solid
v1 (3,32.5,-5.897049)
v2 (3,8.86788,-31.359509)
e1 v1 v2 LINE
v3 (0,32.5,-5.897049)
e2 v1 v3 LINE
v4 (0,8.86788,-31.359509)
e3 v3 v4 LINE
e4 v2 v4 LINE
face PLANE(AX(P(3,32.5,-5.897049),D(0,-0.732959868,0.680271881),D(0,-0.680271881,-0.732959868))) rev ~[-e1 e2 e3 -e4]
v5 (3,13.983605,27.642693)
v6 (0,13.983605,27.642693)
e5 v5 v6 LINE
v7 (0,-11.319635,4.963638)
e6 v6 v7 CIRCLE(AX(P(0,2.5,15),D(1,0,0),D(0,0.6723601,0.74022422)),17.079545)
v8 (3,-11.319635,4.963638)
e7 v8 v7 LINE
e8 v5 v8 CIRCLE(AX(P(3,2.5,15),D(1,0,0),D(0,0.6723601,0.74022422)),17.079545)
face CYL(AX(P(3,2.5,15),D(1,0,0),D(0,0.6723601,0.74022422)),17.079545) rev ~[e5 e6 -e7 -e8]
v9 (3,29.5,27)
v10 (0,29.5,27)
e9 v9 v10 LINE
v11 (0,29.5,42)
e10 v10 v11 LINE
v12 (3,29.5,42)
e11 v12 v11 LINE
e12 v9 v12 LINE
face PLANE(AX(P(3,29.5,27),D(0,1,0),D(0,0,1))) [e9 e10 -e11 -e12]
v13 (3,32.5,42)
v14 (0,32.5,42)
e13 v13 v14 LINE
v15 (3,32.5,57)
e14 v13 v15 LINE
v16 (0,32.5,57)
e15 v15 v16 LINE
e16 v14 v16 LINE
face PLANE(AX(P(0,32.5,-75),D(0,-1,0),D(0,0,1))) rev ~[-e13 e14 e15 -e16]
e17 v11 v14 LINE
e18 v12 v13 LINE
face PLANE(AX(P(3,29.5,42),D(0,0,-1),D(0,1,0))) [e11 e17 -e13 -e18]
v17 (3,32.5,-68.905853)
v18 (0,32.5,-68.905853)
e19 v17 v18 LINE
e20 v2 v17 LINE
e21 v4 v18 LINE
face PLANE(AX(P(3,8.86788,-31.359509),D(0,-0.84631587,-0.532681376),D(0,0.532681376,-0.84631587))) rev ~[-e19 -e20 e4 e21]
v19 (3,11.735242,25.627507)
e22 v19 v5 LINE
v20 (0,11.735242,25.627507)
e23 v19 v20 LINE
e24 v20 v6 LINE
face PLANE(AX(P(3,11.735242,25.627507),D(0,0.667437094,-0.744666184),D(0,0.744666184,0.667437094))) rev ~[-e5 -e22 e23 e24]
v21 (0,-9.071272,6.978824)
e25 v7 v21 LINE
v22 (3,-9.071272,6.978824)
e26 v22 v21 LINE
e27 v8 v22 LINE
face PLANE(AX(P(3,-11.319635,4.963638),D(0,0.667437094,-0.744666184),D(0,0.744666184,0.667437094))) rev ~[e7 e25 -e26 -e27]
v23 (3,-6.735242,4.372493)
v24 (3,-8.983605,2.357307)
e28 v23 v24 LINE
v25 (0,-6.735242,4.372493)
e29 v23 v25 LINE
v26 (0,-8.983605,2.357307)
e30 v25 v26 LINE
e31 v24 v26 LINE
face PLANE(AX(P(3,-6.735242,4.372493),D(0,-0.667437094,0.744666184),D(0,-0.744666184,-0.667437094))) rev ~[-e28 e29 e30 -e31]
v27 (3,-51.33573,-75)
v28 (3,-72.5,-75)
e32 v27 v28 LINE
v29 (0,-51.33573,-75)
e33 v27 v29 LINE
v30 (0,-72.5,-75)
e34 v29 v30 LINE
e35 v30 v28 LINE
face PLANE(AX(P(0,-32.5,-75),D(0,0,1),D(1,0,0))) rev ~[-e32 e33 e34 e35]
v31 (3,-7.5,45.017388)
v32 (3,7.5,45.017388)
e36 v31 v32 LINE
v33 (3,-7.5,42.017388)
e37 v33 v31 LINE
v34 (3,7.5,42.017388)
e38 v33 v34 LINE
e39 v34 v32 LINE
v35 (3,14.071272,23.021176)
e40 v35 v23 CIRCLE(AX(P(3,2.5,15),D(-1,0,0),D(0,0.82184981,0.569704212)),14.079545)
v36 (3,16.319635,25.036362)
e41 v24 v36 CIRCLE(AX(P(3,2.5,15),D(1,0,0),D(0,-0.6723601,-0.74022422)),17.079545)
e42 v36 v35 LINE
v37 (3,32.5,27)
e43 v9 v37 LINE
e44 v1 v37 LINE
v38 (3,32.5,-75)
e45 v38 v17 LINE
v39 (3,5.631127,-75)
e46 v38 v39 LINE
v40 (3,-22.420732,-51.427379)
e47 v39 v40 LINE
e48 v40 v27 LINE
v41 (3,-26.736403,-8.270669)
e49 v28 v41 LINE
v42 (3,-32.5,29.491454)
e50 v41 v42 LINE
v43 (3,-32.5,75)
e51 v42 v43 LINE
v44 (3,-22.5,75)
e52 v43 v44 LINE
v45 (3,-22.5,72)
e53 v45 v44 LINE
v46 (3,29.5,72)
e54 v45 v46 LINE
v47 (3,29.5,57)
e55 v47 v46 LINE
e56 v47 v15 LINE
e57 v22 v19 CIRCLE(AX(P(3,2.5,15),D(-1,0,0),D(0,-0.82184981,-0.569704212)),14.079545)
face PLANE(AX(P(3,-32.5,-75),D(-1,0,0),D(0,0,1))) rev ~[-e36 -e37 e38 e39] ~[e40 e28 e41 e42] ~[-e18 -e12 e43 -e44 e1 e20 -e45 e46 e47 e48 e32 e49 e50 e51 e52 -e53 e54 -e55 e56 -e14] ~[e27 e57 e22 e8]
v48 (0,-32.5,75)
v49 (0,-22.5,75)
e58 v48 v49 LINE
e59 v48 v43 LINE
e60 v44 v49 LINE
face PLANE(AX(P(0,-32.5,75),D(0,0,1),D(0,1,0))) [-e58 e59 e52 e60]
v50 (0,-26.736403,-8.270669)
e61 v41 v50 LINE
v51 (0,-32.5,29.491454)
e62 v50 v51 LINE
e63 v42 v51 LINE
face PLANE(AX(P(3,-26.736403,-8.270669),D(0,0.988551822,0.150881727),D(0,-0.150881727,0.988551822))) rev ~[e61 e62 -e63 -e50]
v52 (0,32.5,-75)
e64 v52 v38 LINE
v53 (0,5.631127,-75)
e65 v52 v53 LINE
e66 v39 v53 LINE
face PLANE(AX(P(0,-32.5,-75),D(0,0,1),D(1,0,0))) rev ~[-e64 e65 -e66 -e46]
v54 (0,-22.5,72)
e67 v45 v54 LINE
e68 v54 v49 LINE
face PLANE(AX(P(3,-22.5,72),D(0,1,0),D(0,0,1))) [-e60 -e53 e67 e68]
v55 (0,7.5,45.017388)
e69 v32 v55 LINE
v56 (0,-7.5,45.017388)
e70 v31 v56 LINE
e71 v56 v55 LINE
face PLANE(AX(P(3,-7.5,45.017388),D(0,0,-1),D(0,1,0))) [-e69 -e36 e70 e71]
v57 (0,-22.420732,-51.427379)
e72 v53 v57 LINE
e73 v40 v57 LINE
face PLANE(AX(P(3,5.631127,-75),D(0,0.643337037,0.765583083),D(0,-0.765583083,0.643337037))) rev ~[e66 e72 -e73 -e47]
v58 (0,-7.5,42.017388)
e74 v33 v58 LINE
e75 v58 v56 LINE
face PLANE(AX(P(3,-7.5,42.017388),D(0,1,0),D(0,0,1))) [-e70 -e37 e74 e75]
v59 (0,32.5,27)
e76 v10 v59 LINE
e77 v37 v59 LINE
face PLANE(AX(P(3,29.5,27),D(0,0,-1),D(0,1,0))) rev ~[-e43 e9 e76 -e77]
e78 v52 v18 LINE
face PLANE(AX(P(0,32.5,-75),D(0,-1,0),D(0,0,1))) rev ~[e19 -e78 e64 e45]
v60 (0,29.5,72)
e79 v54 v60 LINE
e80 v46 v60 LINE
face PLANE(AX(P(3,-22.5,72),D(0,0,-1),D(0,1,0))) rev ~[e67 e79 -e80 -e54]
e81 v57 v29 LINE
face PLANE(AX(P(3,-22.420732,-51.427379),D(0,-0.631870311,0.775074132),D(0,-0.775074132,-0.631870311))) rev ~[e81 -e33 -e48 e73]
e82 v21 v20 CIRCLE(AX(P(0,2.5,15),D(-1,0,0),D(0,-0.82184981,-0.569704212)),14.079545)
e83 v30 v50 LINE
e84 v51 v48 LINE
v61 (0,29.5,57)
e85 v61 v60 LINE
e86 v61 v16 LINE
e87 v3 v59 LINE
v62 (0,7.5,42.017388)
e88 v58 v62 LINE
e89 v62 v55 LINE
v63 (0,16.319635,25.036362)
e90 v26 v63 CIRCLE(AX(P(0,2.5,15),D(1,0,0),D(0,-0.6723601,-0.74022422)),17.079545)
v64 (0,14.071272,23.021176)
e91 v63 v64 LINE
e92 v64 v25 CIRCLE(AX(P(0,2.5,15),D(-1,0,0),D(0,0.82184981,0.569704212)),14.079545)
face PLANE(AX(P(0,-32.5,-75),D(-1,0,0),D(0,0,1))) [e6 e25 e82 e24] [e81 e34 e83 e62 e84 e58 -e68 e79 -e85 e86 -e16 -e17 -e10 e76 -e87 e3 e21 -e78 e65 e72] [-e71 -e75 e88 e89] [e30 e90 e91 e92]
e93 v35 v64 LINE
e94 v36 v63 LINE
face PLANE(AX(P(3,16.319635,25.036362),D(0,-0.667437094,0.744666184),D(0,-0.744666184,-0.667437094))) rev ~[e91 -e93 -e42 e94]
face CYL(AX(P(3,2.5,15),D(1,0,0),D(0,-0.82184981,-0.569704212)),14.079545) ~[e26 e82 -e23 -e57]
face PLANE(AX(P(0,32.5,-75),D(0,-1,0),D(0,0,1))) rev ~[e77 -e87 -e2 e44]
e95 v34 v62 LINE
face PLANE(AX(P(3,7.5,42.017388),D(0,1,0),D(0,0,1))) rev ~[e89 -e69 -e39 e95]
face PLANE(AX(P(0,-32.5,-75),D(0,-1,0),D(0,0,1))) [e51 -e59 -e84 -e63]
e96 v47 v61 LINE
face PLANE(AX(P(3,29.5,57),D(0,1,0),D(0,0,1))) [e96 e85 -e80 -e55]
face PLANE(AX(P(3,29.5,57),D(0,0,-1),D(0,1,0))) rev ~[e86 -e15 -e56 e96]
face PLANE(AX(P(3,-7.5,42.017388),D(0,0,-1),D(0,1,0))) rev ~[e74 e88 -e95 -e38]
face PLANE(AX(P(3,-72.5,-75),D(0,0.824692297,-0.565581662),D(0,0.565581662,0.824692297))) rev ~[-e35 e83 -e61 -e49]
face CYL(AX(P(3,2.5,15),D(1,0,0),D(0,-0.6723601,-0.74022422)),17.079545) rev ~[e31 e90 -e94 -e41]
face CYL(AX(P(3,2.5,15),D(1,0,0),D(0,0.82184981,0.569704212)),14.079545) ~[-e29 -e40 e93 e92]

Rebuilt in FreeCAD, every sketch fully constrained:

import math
import FreeCAD as App
import Part
import Sketcher
Q = App.Units.Quantity


def add_polygon(sketch, points):
    """Adds a closed chain of lines whose ends are joined by coincident constraints."""
    first, n = sketch.GeometryCount, len(points)
    for a, b in zip(points, points[1:] + points[:1]):
        sketch.addGeometry(Part.LineSegment(App.Vector(*a, 0), App.Vector(*b, 0)), False)
    for i in range(n):
        sketch.addConstraint(Sketcher.Constraint("Coincident", first + i, 2, first + (i + 1) % n, 1))

doc = App.newDocument("Part")
body = doc.addObject("PartDesign::Body", "Body")

# Sketch on YZ plane
sketch1 = doc.addObject("Sketcher::SketchObject", "Sketch")
body.addObject(sketch1)
sketch1.AttachmentSupport = (doc.YZ_Plane, [""])
sketch1.MapMode = "FlatFace"
add_polygon(sketch1, [(-32, 75), (-32, -75), (32, -75), (32, 75)])  # lines 0-3
sketch1.addConstraint([
    Sketcher.Constraint("Vertical", 0),
    Sketcher.Constraint("Horizontal", 1),
    Sketcher.Constraint("Vertical", 2),
    Sketcher.Constraint("Horizontal", 3),
    Sketcher.Constraint("Symmetric", 0, 2, 2, 2, -1, 1),
    Sketcher.Constraint("DistanceX", 1, 1, 1, 2, Q("65 mm")),
    Sketcher.Constraint("DistanceY", 0, 2, 0, 1, Q("150 mm")),
])
pad1 = doc.addObject("PartDesign::Pad", "Pad")
body.addObject(pad1)
pad1.Profile = sketch1
pad1.Length = 3

# Sketch on YZ plane
sketch2 = doc.addObject("Sketcher::SketchObject", "Sketch001")
body.addObject(sketch2)
sketch2.AttachmentSupport = (doc.YZ_Plane, [""])
sketch2.MapMode = "FlatFace"
sketch2.AttachmentOffset = App.Placement(App.Vector(0, 0, 3), App.Rotation())
add_polygon(sketch2, [(-22.5, 75), (-22.5, 72), (32.5, 72), (32.5, 75)])  # lines 0-3
sketch2.addConstraint([
    Sketcher.Constraint("Vertical", 0),
    Sketcher.Constraint("Horizontal", 1),
    Sketcher.Constraint("Vertical", 2),
    Sketcher.Constraint("Horizontal", 3),
    Sketcher.Constraint("DistanceX", 1, 1, 1, 2, Q("55 mm")),
    Sketcher.Constraint("DistanceY", 0, 2, 0, 1, Q("3 mm")),
    Sketcher.Constraint("DistanceY", -1, 1, 0, 2, Q("72 mm")),
    Sketcher.Constraint("DistanceX", 0, 2, -1, 1, Q("22.5 mm")),
])
pocket1 = doc.addObject("PartDesign::Pocket", "Pocket")
body.addObject(pocket1)
pocket1.Profile = sketch2
pocket1.Type = "ThroughAll"

# Sketch on YZ plane
sketch3 = doc.addObject("Sketcher::SketchObject", "Sketch002")
body.addObject(sketch3)
sketch3.AttachmentSupport = (doc.YZ_Plane, [""])
sketch3.MapMode = "FlatFace"
sketch3.AttachmentOffset = App.Placement(App.Vector(0, 0, 3), App.Rotation())
add_polygon(sketch3, [(29.5, 72), (29.5, 57), (32.5, 57), (32.5, 72)])  # lines 0-3
add_polygon(sketch3, [(29.5, 42), (29.5, 27), (32.5, 27), (32.5, 42)])  # lines 4-7
sketch3.addConstraint([
    Sketcher.Constraint("Vertical", 0),
    Sketcher.Constraint("Horizontal", 1),
    Sketcher.Constraint("Vertical", 2),
    Sketcher.Constraint("Horizontal", 3),
    Sketcher.Constraint("Vertical", 4),
    Sketcher.Constraint("Horizontal", 5),
    Sketcher.Constraint("Vertical", 6),
    Sketcher.Constraint("Horizontal", 7),
    Sketcher.Constraint("Vertical", 3, 2, 4, 2),
    Sketcher.Constraint("Vertical", 2, 2, 5, 2),
    Sketcher.Constraint("Equal", 2, 4),
    Sketcher.Constraint("DistanceX", 1, 1, 1, 2, Q("3 mm")),
    Sketcher.Constraint("DistanceY", 0, 2, 0, 1, Q("15 mm")),
    Sketcher.Constraint("DistanceY", -1, 1, 0, 2, Q("57 mm")),
    Sketcher.Constraint("DistanceY", -1, 1, 4, 2, Q("27 mm")),
    Sketcher.Constraint("DistanceX", -1, 1, 0, 2, Q("29.5 mm")),
])
pocket2 = doc.addObject("PartDesign::Pocket", "Pocket001")
body.addObject(pocket2)
pocket2.Profile = sketch3
pocket2.Type = "ThroughAll"

# Sketch on XZ plane
sketch4 = doc.addObject("Sketcher::SketchObject", "Sketch003")
body.addObject(sketch4)
sketch4.AttachmentSupport = (doc.XZ_Plane, [""])
sketch4.MapMode = "FlatFace"
sketch4.AttachmentOffset = App.Placement(App.Vector(0, 0, 32.5), App.Rotation())
add_polygon(sketch4, [(0, 0), (0, -75), (3, -75), (3, 0)])  # lines 0-3
sketch4.addConstraint([
    Sketcher.Constraint("Vertical", 0),
    Sketcher.Constraint("Horizontal", 1),
    Sketcher.Constraint("Vertical", 2),
    Sketcher.Constraint("Horizontal", 3),
    Sketcher.Constraint("Coincident", 3, 2, -1, 1),
    Sketcher.Constraint("DistanceX", 1, 1, 1, 2, Q("3 mm")),
    Sketcher.Constraint("DistanceY", 0, 2, 0, 1, Q("75 mm")),
])
pad2 = doc.addObject("PartDesign::Pad", "Pad001")
body.addObject(pad2)
pad2.Profile = sketch4
pad2.Length = 40

# Sketch on YZ plane
sketch5 = doc.addObject("Sketcher::SketchObject", "Sketch004")
body.addObject(sketch5)
sketch5.AttachmentSupport = (doc.YZ_Plane, [""])
sketch5.MapMode = "FlatFace"
sketch5.AttachmentOffset = App.Placement(App.Vector(0, 0, 3), App.Rotation())
sketch5.addGeometry(Part.LineSegment(App.Vector(-6.7, 4.4, 0), App.Vector(-9, 2.4, 0)), False)  # 0
sketch5.addGeometry(Part.ArcOfCircle(Part.Circle(App.Vector(2.5, 15, 0), App.Vector(0, 0, 1), 17.1), math.radians(-132), math.radians(36)), False)  # 1
sketch5.addGeometry(Part.LineSegment(App.Vector(16.3, 25, 0), App.Vector(14.1, 23, 0)), False)  # 2
sketch5.addGeometry(Part.ArcOfCircle(Part.Circle(App.Vector(2.5, 15, 0), App.Vector(0, 0, 1), 14.1), math.radians(-131), math.radians(35)), False)  # 3
sketch5.addGeometry(Part.ArcOfCircle(Part.Circle(App.Vector(2.5, 15, 0), App.Vector(0, 0, 1), 17.1), math.radians(48), math.radians(216)), False)  # 4
sketch5.addGeometry(Part.LineSegment(App.Vector(-11.3, 5, 0), App.Vector(-9.1, 7, 0)), False)  # 5
sketch5.addGeometry(Part.ArcOfCircle(Part.Circle(App.Vector(2.5, 15, 0), App.Vector(0, 0, 1), 14.1), math.radians(49), math.radians(215)), False)  # 6
sketch5.addGeometry(Part.LineSegment(App.Vector(11.7, 25.6, 0), App.Vector(14, 27.6, 0)), False)  # 7
add_polygon(sketch5, [(-26.7, -8.3), (-32.5, 29.5), (-32.5, 0), (-72.5, 0), (-72.5, -75)])  # lines 8-12
add_polygon(sketch5, [(-22.4, -51.4), (-51.3, -75), (5.6, -75)])  # lines 13-15
add_polygon(sketch5, [(8.9, -31.4), (32.5, -68.9), (32.5, -5.9)])  # lines 16-18
add_polygon(sketch5, [(-7.5, 45), (-7.5, 42), (7.5, 42), (7.5, 45)])  # lines 19-22
sketch5.addConstraint([
    Sketcher.Constraint("Coincident", 0, 2, 1, 1),
    Sketcher.Constraint("Coincident", 1, 2, 2, 1),
    Sketcher.Constraint("Coincident", 2, 2, 3, 2),
    Sketcher.Constraint("Coincident", 3, 1, 0, 1),
    Sketcher.Constraint("Coincident", 4, 2, 5, 1),
    Sketcher.Constraint("Coincident", 5, 2, 6, 2),
    Sketcher.Constraint("Coincident", 6, 1, 7, 1),
    Sketcher.Constraint("Coincident", 7, 2, 4, 1),
    Sketcher.Constraint("Vertical", 9),
    Sketcher.Constraint("Horizontal", 10),
    Sketcher.Constraint("Vertical", 11),
    Sketcher.Constraint("Horizontal", 14),
    Sketcher.Constraint("Vertical", 17),
    Sketcher.Constraint("Vertical", 19),
    Sketcher.Constraint("Horizontal", 20),
    Sketcher.Constraint("Vertical", 21),
    Sketcher.Constraint("Horizontal", 22),
    Sketcher.Constraint("Coincident", 3, 3, 1, 3),
    Sketcher.Constraint("Coincident", 4, 3, 1, 3),
    Sketcher.Constraint("Coincident", 6, 3, 1, 3),
    Sketcher.Constraint("Equal", 1, 4),
    Sketcher.Constraint("Equal", 3, 6),
    Sketcher.Constraint("PointOnObject", 9, 2, -1),
    Sketcher.Constraint("Parallel", 0, 2),
    Sketcher.Constraint("Parallel", 2, 5),
    Sketcher.Constraint("Parallel", 5, 7),
    Sketcher.Constraint("Horizontal", 11, 2, 13, 2),
    Sketcher.Constraint("Equal", 0, 2),
    Sketcher.Constraint("Equal", 2, 5),
    Sketcher.Constraint("Equal", 5, 7),
    Sketcher.Constraint("DistanceX", 10, 2, 10, 1, Q("40 mm")),
    Sketcher.Constraint("DistanceX", 20, 1, 20, 2, Q("15 mm")),
    Sketcher.Constraint("DistanceY", 11, 2, 11, 1, Q("75 mm")),
    Sketcher.Constraint("DistanceY", 19, 2, 19, 1, Q("3 mm")),
    Sketcher.Constraint("DistanceY", -1, 1, 1, 3, Q("15 mm")),
    Sketcher.Constraint("DistanceX", 8, 2, 6, 3, Q("35 mm")),
    Sketcher.Constraint("DistanceX", 3, 3, 17, 2, Q("30 mm")),
    Sketcher.Constraint("DistanceX", 8, 2, 19, 2, Q("25 mm")),
    Sketcher.Constraint("DistanceX", -1, 1, 1, 3, Q("2.5 mm")),
    Sketcher.Constraint("Radius", 1, Q("17.079545 mm")),
    Sketcher.Constraint("Radius", 3, Q("14.079545 mm")),
    Sketcher.Constraint("DistanceY", 18, 2, 3, 1, Q("35.732002 mm")),
    Sketcher.Constraint("Distance", 0, Q("3.01929 mm")),
    Sketcher.Constraint("Distance", 15, Q("36.641169 mm")),
    Sketcher.Constraint("Distance", 18, Q("34.739228 mm")),
    Sketcher.Constraint("DistanceX", 14, 1, 14, 2, Q("56.966857 mm")),
    Sketcher.Constraint("DistanceY", 9, 2, 9, 1, Q("29.491454 mm")),
    Sketcher.Constraint("DistanceY", 17, 1, 17, 2, Q("63.008804 mm")),
    Sketcher.Constraint("DistanceY", 12, 2, -1, 1, Q("8.270669 mm")),
    Sketcher.Constraint("DistanceX", 13, 2, -1, 1, Q("51.33573 mm")),
    Sketcher.Constraint("DistanceY", 15, 2, -1, 1, Q("51.427379 mm")),
    Sketcher.Constraint("DistanceY", 17, 2, -1, 1, Q("5.897049 mm")),
    Sketcher.Constraint("DistanceX", -1, 1, 18, 2, Q("8.86788 mm")),
    Sketcher.Constraint("DistanceX", 12, 2, 5, 2, Q("17.665131 mm")),
    Sketcher.Constraint("DistanceY", 6, 1, 19, 2, Q("16.389881 mm")),
])
pocket3 = doc.addObject("PartDesign::Pocket", "Pocket002")
body.addObject(pocket3)
pocket3.Profile = sketch5
pocket3.Type = "ThroughAll"

doc.recompute()
